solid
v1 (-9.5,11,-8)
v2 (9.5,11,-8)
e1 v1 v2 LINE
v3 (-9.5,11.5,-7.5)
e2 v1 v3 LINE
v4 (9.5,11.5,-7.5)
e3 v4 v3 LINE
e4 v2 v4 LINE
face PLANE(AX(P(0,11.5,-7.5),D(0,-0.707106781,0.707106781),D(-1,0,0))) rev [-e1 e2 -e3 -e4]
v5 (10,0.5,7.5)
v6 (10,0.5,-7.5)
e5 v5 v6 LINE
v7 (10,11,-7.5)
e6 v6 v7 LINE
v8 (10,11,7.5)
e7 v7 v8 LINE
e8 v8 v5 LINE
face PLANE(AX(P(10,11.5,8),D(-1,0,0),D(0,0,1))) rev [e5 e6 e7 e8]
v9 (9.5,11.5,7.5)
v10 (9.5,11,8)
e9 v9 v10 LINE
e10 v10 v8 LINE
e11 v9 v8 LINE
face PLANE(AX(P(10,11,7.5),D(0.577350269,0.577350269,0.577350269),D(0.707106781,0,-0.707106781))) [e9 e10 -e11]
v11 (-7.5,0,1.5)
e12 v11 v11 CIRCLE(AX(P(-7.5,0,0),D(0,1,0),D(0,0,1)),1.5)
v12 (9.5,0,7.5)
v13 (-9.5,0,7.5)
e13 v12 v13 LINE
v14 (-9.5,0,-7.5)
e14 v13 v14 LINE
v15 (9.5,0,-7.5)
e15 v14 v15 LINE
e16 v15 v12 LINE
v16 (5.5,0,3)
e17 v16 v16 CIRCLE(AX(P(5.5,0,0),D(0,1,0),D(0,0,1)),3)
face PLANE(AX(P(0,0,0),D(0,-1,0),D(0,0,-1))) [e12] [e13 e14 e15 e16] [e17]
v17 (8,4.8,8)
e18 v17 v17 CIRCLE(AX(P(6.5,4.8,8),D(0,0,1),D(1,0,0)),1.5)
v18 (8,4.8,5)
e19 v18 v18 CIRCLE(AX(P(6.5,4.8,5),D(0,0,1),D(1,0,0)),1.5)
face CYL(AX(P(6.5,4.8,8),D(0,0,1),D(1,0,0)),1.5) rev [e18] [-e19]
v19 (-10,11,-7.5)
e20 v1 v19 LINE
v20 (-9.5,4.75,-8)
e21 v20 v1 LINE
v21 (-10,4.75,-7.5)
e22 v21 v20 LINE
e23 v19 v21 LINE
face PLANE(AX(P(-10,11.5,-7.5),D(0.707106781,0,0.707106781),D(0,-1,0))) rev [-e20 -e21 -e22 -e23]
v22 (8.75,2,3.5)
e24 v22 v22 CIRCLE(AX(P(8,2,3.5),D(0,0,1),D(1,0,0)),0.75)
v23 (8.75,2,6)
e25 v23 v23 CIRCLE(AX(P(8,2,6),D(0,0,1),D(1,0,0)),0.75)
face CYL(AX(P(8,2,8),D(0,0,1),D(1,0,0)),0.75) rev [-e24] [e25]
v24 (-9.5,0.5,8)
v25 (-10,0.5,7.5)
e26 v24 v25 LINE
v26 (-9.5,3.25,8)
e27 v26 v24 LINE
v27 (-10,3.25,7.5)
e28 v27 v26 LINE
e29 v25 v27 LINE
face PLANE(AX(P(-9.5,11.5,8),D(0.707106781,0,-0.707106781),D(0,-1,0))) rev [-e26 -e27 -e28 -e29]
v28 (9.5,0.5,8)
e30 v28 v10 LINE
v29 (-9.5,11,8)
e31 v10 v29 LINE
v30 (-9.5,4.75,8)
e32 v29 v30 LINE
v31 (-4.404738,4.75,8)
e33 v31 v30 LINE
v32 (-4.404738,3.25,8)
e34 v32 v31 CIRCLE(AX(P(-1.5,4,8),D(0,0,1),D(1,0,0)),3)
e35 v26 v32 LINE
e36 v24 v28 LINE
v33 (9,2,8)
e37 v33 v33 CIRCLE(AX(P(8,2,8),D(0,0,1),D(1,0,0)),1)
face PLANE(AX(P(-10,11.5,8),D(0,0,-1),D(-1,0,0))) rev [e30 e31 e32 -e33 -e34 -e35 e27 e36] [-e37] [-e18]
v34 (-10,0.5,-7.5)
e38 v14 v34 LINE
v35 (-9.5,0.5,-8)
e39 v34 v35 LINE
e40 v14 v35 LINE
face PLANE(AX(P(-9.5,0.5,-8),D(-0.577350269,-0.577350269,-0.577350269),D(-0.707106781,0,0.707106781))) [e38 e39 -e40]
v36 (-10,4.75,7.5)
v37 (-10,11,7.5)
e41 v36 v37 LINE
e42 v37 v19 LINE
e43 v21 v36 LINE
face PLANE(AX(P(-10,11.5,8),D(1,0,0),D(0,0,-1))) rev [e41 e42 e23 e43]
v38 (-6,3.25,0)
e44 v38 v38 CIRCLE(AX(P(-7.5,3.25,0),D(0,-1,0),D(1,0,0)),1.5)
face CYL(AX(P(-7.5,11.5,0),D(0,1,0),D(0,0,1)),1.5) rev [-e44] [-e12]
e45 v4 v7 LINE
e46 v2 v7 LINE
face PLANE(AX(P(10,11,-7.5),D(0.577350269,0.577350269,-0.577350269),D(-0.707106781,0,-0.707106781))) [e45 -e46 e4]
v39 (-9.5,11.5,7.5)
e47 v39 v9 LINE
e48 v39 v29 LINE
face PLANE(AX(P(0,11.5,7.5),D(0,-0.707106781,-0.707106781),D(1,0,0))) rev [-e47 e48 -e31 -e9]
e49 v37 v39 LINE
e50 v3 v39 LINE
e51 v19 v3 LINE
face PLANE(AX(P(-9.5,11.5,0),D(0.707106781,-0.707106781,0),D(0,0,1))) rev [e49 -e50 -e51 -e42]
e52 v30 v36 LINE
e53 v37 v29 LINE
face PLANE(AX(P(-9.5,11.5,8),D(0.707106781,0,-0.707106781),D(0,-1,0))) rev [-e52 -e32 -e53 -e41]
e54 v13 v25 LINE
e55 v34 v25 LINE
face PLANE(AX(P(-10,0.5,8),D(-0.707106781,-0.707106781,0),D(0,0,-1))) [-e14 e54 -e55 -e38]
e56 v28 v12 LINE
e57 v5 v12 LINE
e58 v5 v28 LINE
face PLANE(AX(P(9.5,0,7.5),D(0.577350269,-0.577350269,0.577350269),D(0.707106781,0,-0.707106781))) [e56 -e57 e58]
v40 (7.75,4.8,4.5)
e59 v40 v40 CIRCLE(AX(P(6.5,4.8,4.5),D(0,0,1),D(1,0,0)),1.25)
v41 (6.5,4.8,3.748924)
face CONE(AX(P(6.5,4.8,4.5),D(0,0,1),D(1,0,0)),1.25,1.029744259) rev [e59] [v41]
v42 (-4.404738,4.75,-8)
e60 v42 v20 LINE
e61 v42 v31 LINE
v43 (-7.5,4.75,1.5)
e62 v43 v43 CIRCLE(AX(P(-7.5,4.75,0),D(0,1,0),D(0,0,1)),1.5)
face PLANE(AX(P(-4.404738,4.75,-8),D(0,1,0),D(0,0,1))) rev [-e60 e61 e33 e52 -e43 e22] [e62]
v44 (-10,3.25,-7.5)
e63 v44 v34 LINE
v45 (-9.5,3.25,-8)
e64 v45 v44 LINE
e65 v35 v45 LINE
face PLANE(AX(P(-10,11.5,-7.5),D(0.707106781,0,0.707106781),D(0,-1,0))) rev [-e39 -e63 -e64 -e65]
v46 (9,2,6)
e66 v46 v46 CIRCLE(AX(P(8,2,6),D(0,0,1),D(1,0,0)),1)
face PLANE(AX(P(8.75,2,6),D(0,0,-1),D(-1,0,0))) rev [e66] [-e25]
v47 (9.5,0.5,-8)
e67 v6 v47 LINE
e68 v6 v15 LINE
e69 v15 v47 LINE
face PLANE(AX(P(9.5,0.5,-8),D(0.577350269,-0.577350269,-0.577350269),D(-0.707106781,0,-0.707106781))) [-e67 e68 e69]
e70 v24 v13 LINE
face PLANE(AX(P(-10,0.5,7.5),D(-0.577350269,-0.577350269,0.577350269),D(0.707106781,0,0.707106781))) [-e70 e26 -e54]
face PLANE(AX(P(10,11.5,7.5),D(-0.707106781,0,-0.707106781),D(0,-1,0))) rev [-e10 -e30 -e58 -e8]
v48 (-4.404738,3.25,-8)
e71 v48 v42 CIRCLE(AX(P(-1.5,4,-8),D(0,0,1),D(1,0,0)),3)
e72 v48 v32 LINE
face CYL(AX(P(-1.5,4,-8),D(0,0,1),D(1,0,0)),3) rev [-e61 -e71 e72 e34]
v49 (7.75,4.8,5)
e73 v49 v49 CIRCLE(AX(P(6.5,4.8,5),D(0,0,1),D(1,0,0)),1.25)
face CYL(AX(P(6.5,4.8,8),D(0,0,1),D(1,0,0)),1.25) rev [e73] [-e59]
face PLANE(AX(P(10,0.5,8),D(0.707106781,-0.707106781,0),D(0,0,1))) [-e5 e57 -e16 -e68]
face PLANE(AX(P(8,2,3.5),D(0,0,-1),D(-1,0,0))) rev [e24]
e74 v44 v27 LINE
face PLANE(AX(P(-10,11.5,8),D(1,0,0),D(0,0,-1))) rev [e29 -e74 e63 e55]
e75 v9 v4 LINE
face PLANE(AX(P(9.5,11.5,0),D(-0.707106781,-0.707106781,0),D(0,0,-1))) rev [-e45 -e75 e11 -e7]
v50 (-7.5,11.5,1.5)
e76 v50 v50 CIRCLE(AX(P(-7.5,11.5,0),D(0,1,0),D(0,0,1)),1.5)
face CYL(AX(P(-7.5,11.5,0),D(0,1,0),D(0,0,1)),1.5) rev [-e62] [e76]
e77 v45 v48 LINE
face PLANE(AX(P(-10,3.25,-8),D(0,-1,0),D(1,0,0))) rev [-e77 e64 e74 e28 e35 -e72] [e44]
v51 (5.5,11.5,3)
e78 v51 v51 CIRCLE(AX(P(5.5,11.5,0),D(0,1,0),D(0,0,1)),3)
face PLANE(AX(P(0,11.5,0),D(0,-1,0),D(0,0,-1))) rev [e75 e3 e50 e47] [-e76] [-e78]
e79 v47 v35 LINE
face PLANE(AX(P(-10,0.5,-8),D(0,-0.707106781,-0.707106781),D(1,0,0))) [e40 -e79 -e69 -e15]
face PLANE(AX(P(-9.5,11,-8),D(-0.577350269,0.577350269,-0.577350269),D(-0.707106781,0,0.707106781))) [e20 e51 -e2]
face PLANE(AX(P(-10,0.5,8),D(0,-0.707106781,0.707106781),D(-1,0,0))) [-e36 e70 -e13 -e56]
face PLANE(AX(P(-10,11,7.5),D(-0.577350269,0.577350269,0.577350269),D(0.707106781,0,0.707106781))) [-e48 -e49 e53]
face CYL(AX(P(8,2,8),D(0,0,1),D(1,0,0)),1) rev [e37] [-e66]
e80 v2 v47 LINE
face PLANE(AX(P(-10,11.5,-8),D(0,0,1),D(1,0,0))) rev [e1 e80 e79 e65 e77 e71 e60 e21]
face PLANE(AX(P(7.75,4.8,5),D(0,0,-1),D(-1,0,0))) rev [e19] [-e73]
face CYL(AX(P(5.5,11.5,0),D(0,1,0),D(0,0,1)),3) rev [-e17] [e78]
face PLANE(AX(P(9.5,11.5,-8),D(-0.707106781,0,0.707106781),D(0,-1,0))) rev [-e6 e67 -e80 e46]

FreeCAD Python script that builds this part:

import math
import FreeCAD as App
import Part
import Sketcher
from FreeCAD import Vector


def edges_at(feature, points):
    """Names of the edges that pass closest to the given points."""
    edges = feature.Shape.Edges
    near = lambda p: min(range(len(edges)), key=lambda i: edges[i].distToShape(Part.Vertex(*p))[0])
    return sorted({f"Edge{near(p) + 1}" for p in points})


def add_polygon(sketch, points):
    """Adds a closed chain of lines whose ends are joined by coincident constraints."""
    first, n = sketch.GeometryCount, len(points)
    for a, b in zip(points, points[1:] + points[:1]):
        sketch.addGeometry(Part.LineSegment(App.Vector(*a, 0), App.Vector(*b, 0)), False)
    for i in range(n):
        sketch.addConstraint(Sketcher.Constraint("Coincident", first + i, 2, first + (i + 1) % n, 1))

doc = App.newDocument("Part")
body = doc.addObject("PartDesign::Body", "Body")

sketch1 = body.newObject("Sketcher::SketchObject", "Sketch")
sketch1.AttachmentSupport = (doc.getObject("XZ_Plane"), [""])
sketch1.MapMode = "FlatFace"
add_polygon(sketch1, [(-10, -8), (-10, 8), (10, 8), (10, -8)])
sketch1.addConstraint(Sketcher.Constraint("Vertical", 0))
sketch1.addConstraint(Sketcher.Constraint("Horizontal", 1))
sketch1.addConstraint(Sketcher.Constraint("Vertical", 2))
sketch1.addConstraint(Sketcher.Constraint("Horizontal", 3))
sketch1.addConstraint(Sketcher.Constraint("Symmetric", 0, 2, 2, 2, -1, 1))
sketch1.addConstraint(Sketcher.Constraint("DistanceX", 1, 1, 1, 2, 20.0))
sketch1.addConstraint(Sketcher.Constraint("DistanceY", 0, 1, 0, 2, 16.0))
pad1 = body.newObject("PartDesign::Pad", "Pad")
pad1.Profile = sketch1
pad1.Length = 11.5
pad1.Reversed = True

sketch2 = body.newObject("Sketcher::SketchObject", "Sketch001")
sketch2.AttachmentSupport = (doc.getObject("XY_Plane"), [""])
sketch2.MapMode = "FlatFace"
sketch2.AttachmentOffset = App.Placement(Vector(0, 0, 8), App.Rotation())
sketch2.addGeometry(Part.LineSegment(Vector(-4.404738, 4.75, 0), Vector(-10, 4.75, 0)), False)
sketch2.addGeometry(Part.LineSegment(Vector(-10, 4.75, 0), Vector(-10, 3.25, 0)), False)
sketch2.addGeometry(Part.LineSegment(Vector(-10, 3.25, 0), Vector(-4.404738, 3.25, 0)), False)
sketch2.addGeometry(Part.ArcOfCircle(Part.Circle(Vector(-1.5, 4, 0), Vector(0, 0, 1), 3), math.radians(-165.522488), math.radians(165.522488)), False)
sketch2.addConstraint(Sketcher.Constraint("Coincident", 0, 2, 1, 1))
sketch2.addConstraint(Sketcher.Constraint("Coincident", 1, 2, 2, 1))
sketch2.addConstraint(Sketcher.Constraint("Coincident", 2, 2, 3, 1))
sketch2.addConstraint(Sketcher.Constraint("Coincident", 3, 2, 0, 1))
sketch2.addConstraint(Sketcher.Constraint("Horizontal", 0))
sketch2.addConstraint(Sketcher.Constraint("Vertical", 1))
sketch2.addConstraint(Sketcher.Constraint("Horizontal", 2))
sketch2.addConstraint(Sketcher.Constraint("Vertical", 2, 2, 3, 2))
sketch2.addConstraint(Sketcher.Constraint("Radius", 3, 3.0))
sketch2.addConstraint(Sketcher.Constraint("DistanceY", 1, 2, 1, 1, 1.5))
sketch2.addConstraint(Sketcher.Constraint("DistanceY", -1, 1, 3, 3, 4.0))
sketch2.addConstraint(Sketcher.Constraint("DistanceX", 0, 2, -1, 1, 10.0))
sketch2.addConstraint(Sketcher.Constraint("DistanceX", 3, 3, -1, 1, 1.5))
pocket1 = body.newObject("PartDesign::Pocket", "Pocket")
pocket1.Profile = sketch2
pocket1.Type = "ThroughAll"

sketch3 = body.newObject("Sketcher::SketchObject", "Sketch002")
sketch3.AttachmentSupport = (doc.getObject("XY_Plane"), [""])
sketch3.MapMode = "FlatFace"
sketch3.AttachmentOffset = App.Placement(Vector(0, 0, 8), App.Rotation())
sketch3.addGeometry(Part.Circle(Vector(6.5, 4.8, 0), Vector(0, 0, 1), 1.25), False)
sketch3.addConstraint(Sketcher.Constraint("Diameter", 0, 2.5))
sketch3.addConstraint(Sketcher.Constraint("DistanceX", -1, 1, 0, 3, 6.5))
sketch3.addConstraint(Sketcher.Constraint("DistanceY", -1, 1, 0, 3, 4.8))
doc.recompute()
hole = body.newObject("PartDesign::Hole", "Hole")
hole.Profile = sketch3
hole.ThreadType = "None"
hole.Diameter = 2.5
hole.DepthType = "Dimension"
hole.Depth = 3.5
hole.DrillPoint = "Angled"
hole.DrillPointAngle = 118
hole.HoleCutType = "Counterbore"
hole.HoleCutDiameter = 3
hole.HoleCutDepth = 3

sketch4 = body.newObject("Sketcher::SketchObject", "Sketch003")
sketch4.AttachmentSupport = (doc.getObject("XY_Plane"), [""])
sketch4.MapMode = "FlatFace"
sketch4.AttachmentOffset = App.Placement(Vector(0, 0, 8), App.Rotation())
sketch4.addGeometry(Part.Circle(Vector(8, 2, 0), Vector(0, 0, 1), 0.75), False)
sketch4.addConstraint(Sketcher.Constraint("Diameter", 0, 1.5))
sketch4.addConstraint(Sketcher.Constraint("DistanceX", -1, 1, 0, 3, 8.0))
sketch4.addConstraint(Sketcher.Constraint("DistanceY", -1, 1, 0, 3, 2.0))
doc.recompute()
hole2 = body.newObject("PartDesign::Hole", "Hole001")
hole2.Profile = sketch4
hole2.ThreadType = "None"
hole2.Diameter = 1.5
hole2.DepthType = "Dimension"
hole2.Depth = 4.5
hole2.DrillPoint = "Flat"
hole2.HoleCutType = "Counterbore"
hole2.HoleCutDiameter = 2
hole2.HoleCutDepth = 2

sketch5 = body.newObject("Sketcher::SketchObject", "Sketch004")
sketch5.AttachmentSupport = (doc.getObject("XZ_Plane"), [""])
sketch5.MapMode = "FlatFace"
sketch5.AttachmentOffset = App.Placement(Vector(0, 0, -11.5), App.Rotation())
sketch5.addGeometry(Part.Circle(Vector(5.5, 0, 0), Vector(0, 0, 1), 3), False)
sketch5.addConstraint(Sketcher.Constraint("PointOnObject", 0, 3, -1))
sketch5.addConstraint(Sketcher.Constraint("Diameter", 0, 6.0))
sketch5.addConstraint(Sketcher.Constraint("DistanceX", -1, 1, 0, 3, 5.5))
doc.recompute()
hole3 = body.newObject("PartDesign::Hole", "Hole002")
hole3.Profile = sketch5
hole3.ThreadType = "None"
hole3.Diameter = 6
hole3.DepthType = "ThroughAll"
hole3.Reversed = True

sketch6 = body.newObject("Sketcher::SketchObject", "Sketch005")
sketch6.AttachmentSupport = (doc.getObject("XZ_Plane"), [""])
sketch6.MapMode = "FlatFace"
sketch6.AttachmentOffset = App.Placement(Vector(0, 0, -11.5), App.Rotation())
sketch6.addGeometry(Part.Circle(Vector(-7.5, 0, 0), Vector(0, 0, 1), 1.5), False)
sketch6.addConstraint(Sketcher.Constraint("PointOnObject", 0, 3, -1))
sketch6.addConstraint(Sketcher.Constraint("Diameter", 0, 3.0))
sketch6.addConstraint(Sketcher.Constraint("DistanceX", 0, 3, -1, 1, 7.5))
doc.recompute()
hole4 = body.newObject("PartDesign::Hole", "Hole003")
hole4.Profile = sketch6
hole4.ThreadType = "None"
hole4.Diameter = 3
hole4.DepthType = "ThroughAll"
hole4.Reversed = True
doc.recompute()

chamfer = body.newObject("PartDesign::Chamfer", "Chamfer")
chamfer.Base = (hole4, edges_at(hole4, [
    (-10, 11.5, 0),
    (0, 11.5, 8),
    (-10, 1.625, 8),
    (-10, 1.625, -8),
    (10, 11.5, 0),
    (0, 0, 8),
    (-10, 0, 0),
    (0, 0, -8),
    (10, 0, 0),
    (0, 11.5, -8),
    (10, 5.75, 8),
    (-10, 8.125, 8),
    (-10, 8.125, -8),
    (10, 5.75, -8),
]))
chamfer.Size = 0.5

doc.recompute()
